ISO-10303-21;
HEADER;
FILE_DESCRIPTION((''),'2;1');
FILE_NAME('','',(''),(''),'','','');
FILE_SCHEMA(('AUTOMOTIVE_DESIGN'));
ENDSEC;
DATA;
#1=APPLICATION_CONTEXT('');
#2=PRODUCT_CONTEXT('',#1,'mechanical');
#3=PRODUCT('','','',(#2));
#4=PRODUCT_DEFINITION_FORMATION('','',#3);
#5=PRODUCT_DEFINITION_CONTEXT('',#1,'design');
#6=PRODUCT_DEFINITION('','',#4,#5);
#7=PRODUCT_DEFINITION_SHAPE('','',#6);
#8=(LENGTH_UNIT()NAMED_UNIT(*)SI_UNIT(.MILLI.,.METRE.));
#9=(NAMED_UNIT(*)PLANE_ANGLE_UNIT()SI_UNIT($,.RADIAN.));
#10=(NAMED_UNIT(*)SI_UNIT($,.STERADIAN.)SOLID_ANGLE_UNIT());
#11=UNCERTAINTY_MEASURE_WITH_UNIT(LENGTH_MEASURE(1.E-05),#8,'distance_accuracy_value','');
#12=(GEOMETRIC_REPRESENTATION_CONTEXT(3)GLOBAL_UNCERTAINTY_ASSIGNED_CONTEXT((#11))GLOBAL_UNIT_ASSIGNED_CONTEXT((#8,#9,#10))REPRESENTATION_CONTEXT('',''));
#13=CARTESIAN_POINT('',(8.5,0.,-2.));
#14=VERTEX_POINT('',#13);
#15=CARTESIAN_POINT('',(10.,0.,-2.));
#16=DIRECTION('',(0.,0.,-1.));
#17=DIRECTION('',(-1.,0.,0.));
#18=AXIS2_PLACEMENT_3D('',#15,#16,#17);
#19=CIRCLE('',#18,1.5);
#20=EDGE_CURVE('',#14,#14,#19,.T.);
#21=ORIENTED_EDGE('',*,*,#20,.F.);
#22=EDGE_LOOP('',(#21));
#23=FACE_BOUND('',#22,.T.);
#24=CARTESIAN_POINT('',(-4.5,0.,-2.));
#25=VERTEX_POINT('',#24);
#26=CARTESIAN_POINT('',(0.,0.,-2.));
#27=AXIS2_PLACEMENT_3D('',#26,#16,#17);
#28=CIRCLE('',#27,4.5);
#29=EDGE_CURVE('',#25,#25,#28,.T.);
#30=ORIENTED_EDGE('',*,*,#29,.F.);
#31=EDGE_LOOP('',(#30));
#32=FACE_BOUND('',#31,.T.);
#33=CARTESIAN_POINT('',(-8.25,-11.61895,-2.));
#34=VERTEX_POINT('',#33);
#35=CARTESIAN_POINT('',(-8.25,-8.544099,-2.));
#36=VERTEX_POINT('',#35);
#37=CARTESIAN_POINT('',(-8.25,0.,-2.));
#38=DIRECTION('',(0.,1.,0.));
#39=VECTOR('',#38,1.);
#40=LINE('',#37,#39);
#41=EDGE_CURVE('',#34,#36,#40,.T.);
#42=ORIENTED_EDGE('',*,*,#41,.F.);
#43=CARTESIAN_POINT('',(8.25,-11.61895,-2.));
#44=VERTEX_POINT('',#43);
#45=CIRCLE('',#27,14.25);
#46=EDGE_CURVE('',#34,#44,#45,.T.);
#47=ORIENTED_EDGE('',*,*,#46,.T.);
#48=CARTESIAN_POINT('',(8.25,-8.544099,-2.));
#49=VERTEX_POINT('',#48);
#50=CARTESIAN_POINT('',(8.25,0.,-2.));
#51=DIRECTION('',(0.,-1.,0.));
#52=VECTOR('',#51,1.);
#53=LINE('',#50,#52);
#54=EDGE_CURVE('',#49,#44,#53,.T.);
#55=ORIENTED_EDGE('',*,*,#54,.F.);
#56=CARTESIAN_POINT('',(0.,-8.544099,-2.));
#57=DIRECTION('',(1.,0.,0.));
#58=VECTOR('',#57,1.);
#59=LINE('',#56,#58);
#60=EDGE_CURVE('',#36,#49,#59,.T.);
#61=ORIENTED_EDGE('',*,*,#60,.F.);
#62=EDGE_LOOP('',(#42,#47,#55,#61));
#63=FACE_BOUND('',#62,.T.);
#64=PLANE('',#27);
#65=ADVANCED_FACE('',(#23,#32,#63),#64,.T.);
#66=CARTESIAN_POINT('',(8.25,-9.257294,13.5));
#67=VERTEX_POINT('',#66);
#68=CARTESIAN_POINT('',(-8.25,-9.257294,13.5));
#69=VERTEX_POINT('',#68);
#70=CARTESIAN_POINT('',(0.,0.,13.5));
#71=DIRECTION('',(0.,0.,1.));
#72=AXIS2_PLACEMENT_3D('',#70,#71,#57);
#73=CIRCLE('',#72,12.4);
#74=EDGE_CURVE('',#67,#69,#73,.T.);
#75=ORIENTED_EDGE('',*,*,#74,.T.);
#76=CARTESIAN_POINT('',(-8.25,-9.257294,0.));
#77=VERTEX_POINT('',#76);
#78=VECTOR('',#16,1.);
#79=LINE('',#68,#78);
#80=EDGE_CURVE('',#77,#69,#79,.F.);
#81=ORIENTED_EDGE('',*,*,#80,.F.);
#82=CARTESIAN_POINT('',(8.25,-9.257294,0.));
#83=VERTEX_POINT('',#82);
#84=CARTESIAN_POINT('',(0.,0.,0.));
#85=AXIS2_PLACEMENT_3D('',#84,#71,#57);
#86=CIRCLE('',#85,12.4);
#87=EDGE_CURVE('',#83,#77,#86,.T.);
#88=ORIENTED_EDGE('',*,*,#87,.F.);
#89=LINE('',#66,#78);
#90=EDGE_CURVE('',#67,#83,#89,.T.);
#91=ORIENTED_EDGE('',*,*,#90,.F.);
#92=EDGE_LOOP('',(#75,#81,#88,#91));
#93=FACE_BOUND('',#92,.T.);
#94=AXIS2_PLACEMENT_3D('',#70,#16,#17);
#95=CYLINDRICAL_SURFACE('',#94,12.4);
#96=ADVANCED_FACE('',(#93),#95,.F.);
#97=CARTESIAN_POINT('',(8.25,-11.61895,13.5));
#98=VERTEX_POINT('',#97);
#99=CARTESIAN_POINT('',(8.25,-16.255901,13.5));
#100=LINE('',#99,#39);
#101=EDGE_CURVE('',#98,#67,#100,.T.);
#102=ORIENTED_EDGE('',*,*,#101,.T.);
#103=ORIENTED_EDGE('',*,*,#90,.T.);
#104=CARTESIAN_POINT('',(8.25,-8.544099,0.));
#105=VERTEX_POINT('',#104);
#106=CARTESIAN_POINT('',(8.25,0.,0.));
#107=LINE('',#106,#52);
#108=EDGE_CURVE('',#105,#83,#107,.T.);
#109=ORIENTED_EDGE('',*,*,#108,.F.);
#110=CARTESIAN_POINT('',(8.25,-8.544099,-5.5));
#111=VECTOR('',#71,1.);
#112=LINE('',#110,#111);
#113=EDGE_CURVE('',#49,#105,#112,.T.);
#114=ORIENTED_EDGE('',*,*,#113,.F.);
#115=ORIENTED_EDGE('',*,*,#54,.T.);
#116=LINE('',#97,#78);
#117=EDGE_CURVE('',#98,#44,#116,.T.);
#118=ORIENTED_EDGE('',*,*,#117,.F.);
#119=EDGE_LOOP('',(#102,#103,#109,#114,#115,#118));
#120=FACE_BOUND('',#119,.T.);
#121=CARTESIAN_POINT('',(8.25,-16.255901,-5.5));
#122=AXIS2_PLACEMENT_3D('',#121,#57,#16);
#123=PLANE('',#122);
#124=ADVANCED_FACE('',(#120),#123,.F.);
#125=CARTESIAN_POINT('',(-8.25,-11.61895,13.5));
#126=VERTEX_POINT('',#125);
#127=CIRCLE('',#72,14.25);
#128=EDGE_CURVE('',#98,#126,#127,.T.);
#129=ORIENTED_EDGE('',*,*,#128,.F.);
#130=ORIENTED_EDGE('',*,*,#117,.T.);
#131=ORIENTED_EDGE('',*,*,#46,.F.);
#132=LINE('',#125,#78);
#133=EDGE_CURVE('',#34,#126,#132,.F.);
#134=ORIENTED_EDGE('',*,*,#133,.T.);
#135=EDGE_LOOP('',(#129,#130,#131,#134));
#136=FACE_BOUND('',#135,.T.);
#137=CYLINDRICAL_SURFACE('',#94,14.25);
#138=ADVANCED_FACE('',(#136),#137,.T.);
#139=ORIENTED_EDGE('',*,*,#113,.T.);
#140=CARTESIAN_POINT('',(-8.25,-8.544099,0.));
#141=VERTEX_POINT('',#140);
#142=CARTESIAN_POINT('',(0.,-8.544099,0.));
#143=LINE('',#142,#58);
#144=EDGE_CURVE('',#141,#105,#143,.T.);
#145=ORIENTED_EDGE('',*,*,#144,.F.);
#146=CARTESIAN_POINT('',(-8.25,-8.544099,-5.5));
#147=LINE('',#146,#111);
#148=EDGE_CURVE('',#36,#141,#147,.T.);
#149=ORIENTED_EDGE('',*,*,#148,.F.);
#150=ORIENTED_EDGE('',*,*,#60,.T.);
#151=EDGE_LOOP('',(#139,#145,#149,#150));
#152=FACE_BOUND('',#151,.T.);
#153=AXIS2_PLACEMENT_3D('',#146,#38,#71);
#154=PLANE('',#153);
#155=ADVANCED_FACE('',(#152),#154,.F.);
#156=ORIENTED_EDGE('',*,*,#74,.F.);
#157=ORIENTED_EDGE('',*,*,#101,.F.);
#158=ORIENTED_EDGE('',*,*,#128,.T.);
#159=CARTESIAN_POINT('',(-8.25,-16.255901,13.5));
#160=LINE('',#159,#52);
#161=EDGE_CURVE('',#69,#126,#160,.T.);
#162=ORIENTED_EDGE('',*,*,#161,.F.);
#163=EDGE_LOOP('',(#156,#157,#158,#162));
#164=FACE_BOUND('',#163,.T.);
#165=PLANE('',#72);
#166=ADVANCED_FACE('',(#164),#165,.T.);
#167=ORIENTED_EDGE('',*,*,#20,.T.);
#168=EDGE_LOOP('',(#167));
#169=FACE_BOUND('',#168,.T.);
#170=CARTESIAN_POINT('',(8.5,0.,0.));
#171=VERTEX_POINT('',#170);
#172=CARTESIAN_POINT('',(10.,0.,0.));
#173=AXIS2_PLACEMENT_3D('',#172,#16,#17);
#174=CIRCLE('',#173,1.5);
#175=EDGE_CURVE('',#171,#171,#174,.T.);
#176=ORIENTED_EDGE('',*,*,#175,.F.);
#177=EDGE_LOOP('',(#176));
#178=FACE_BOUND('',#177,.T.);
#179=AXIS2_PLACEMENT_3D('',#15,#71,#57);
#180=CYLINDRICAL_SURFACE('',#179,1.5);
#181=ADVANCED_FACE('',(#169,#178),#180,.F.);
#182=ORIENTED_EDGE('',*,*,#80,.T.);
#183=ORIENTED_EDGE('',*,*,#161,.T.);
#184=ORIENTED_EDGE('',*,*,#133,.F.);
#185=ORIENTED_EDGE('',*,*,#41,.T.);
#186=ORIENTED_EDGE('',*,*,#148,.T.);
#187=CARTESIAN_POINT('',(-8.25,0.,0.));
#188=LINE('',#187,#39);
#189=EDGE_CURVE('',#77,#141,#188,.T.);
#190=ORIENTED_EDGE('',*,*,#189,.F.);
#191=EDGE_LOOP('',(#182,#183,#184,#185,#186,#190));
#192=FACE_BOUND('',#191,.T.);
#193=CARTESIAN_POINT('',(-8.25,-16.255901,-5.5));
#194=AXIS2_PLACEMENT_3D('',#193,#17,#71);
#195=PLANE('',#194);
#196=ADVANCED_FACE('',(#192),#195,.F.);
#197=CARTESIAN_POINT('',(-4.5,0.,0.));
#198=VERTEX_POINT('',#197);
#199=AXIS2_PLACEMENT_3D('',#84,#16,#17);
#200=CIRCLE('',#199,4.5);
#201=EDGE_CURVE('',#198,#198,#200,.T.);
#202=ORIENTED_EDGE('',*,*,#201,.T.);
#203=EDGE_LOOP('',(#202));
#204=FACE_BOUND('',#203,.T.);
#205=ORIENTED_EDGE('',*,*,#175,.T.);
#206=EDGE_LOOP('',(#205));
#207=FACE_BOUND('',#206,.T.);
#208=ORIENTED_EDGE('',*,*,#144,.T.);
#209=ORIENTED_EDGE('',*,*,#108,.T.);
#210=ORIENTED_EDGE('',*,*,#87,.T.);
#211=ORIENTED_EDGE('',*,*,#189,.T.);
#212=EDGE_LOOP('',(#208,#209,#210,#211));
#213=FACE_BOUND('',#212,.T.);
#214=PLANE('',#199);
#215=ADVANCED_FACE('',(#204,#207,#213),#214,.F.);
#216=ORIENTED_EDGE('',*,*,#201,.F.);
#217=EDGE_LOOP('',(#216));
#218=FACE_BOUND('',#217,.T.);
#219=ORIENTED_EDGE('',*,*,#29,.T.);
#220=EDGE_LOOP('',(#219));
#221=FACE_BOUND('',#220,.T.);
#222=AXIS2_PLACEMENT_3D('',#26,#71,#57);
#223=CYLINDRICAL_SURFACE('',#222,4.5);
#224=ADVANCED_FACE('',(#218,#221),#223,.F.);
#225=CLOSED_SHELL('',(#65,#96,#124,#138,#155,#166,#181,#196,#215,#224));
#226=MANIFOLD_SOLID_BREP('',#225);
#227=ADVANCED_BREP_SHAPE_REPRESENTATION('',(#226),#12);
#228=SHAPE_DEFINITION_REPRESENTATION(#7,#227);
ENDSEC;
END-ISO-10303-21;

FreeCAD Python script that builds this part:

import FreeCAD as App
import Part
import Sketcher

V = App.Vector
Q = App.Units.Quantity

doc = App.newDocument("Part")
body = doc.addObject("PartDesign::Body", "Body")

# Sketch on XY plane
sketch1 = body.newObject("Sketcher::SketchObject", "Sketch")
sketch1.AttachmentSupport = (doc.getObject("XY_Plane"), [""])
sketch1.MapMode = "FlatFace"
sketch1.addGeometry([
    Part.Circle(V(0, 0, 0), V(0, 0, 1), 14.25),
    Part.Circle(V(0, 0, 0), V(0, 0, 1), 12.4),
], False)
sketch1.addConstraint([
    Sketcher.Constraint("Coincident", 0, 3, -1, 1),
    Sketcher.Constraint("Coincident", 1, 3, -1, 1),
    Sketcher.Constraint("Diameter", 0, Q("28.5 mm")),
    Sketcher.Constraint("Diameter", 1, Q("24.8 mm")),
])
pad1 = body.newObject("PartDesign::Pad", "Pad")
pad1.Profile = sketch1
pad1.Length = 13.5

# Sketch on XY plane
sketch2 = body.newObject("Sketcher::SketchObject", "Sketch001")
sketch2.AttachmentSupport = (doc.getObject("XY_Plane"), [""])
sketch2.MapMode = "FlatFace"
sketch2.AttachmentOffset = App.Placement(V(0, 0, -2), App.Rotation())
sketch2.addGeometry([
    Part.Circle(V(0, 0, 0), V(0, 0, 1), 14.25),
    Part.Circle(V(10, 0, 0), V(0, 0, 1), 1.5),
    Part.Circle(V(0, 0, 0), V(0, 0, 1), 4.5),
], False)
sketch2.addConstraint([
    Sketcher.Constraint("Coincident", 0, 3, -1, 1),
    Sketcher.Constraint("Coincident", 2, 3, -1, 1),
    Sketcher.Constraint("PointOnObject", 1, 3, -1),
    Sketcher.Constraint("Diameter", 1, Q("3 mm")),
    Sketcher.Constraint("Diameter", 2, Q("9 mm")),
    Sketcher.Constraint("Diameter", 0, Q("28.5 mm")),
    Sketcher.Constraint("DistanceX", -1, 1, 1, 3, Q("10 mm")),
])
pad2 = body.newObject("PartDesign::Pad", "Pad001")
pad2.Profile = sketch2
pad2.Length = 2

# Sketch on XY plane
sketch3 = body.newObject("Sketcher::SketchObject", "Sketch002")
sketch3.AttachmentSupport = (doc.getObject("XY_Plane"), [""])
sketch3.MapMode = "FlatFace"
sketch3.AttachmentOffset = App.Placement(V(0, 0, 13.5), App.Rotation())
sketch3.addGeometry([
    Part.LineSegment(V(-8.25, -8.544099, 0), V(-8.25, -16.255901, 0)),
    Part.LineSegment(V(-8.25, -16.255901, 0), V(8.25, -16.255901, 0)),
    Part.LineSegment(V(8.25, -16.255901, 0), V(8.25, -8.544099, 0)),
    Part.LineSegment(V(8.25, -8.544099, 0), V(-8.25, -8.544099, 0)),
], False)
sketch3.addConstraint([
    Sketcher.Constraint("Coincident", 0, 2, 1, 1),
    Sketcher.Constraint("Coincident", 1, 2, 2, 1),
    Sketcher.Constraint("Coincident", 2, 2, 3, 1),
    Sketcher.Constraint("Coincident", 3, 2, 0, 1),
    Sketcher.Constraint("Vertical", 0),
    Sketcher.Constraint("Horizontal", 1),
    Sketcher.Constraint("Vertical", 2),
    Sketcher.Constraint("Horizontal", 3),
    Sketcher.Constraint("DistanceX", 1, 1, 1, 2, Q("16.5 mm")),
    Sketcher.Constraint("DistanceX", 0, 2, -1, 1, Q("8.25 mm")),
    Sketcher.Constraint("DistanceY", 0, 2, 0, 1, Q("7.711802 mm")),
    Sketcher.Constraint("DistanceY", 0, 2, -1, 1, Q("16.255901 mm")),
])
pocket1 = body.newObject("PartDesign::Pocket", "Pocket")
pocket1.Profile = sketch3
pocket1.Length = 19

doc.recompute()
